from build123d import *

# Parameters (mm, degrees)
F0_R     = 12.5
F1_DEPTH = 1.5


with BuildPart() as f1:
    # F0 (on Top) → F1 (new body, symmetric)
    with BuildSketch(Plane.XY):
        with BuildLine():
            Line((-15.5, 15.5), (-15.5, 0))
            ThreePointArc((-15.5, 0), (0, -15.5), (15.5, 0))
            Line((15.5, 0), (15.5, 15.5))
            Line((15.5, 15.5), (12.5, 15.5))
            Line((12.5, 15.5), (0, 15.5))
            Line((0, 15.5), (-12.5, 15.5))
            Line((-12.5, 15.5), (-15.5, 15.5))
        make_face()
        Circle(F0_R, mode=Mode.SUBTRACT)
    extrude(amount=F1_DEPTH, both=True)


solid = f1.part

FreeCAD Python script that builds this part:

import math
import FreeCAD as App
import Part
import Sketcher
from FreeCAD import Vector
Q = App.Units.Quantity

doc = App.newDocument("Part")
params = doc.addObject("Spreadsheet::Sheet", "Params")
for row, (alias, value) in enumerate([
    ("sketch1_diameter", "25 mm"),
    ("sketch1_radius", "15.5 mm"),
    ("sketch1_height", "15.5 mm"),
    ("pad1_length", "3 mm"),
], start=1):
    params.set(f"A{row}", alias)
    params.set(f"B{row}", "=" + value)
    params.setAlias(f"B{row}", alias)

body = doc.addObject("PartDesign::Body", "Body")

# Sketch on XY plane
sketch1 = body.newObject("Sketcher::SketchObject", "Sketch")
sketch1.AttachmentSupport = (doc.getObject("XY_Plane"), [""])
sketch1.MapMode = "FlatFace"
sketch1.addGeometry(Part.LineSegment(Vector(-16, 16, 0), Vector(-16, 0, 0)), False)
sketch1.addGeometry(Part.ArcOfCircle(Part.Circle(Vector(0, 0, 0), Vector(0, 0, 1), 16), math.radians(180), math.radians(360)), False)
sketch1.addGeometry(Part.LineSegment(Vector(16, 0, 0), Vector(16, 16, 0)), False)
sketch1.addGeometry(Part.LineSegment(Vector(16, 16, 0), Vector(-16, 16, 0)), False)
sketch1.addGeometry(Part.Circle(Vector(0, 0, 0), Vector(0, 0, 1), 12), False)
sketch1.addConstraint(Sketcher.Constraint("Tangent", 0, 2, 1, 1))
sketch1.addConstraint(Sketcher.Constraint("Tangent", 1, 2, 2, 1))
sketch1.addConstraint(Sketcher.Constraint("Coincident", 2, 2, 3, 1))
sketch1.addConstraint(Sketcher.Constraint("Coincident", 3, 2, 0, 1))
sketch1.addConstraint(Sketcher.Constraint("Vertical", 0))
sketch1.addConstraint(Sketcher.Constraint("Vertical", 2))
sketch1.addConstraint(Sketcher.Constraint("Horizontal", 3))
sketch1.addConstraint(Sketcher.Constraint("Coincident", 1, 3, -1, 1))
sketch1.addConstraint(Sketcher.Constraint("Coincident", 4, 3, -1, 1))
sketch1.addConstraint(Sketcher.Constraint("Diameter", 4, Q("25 mm")))
sketch1.addConstraint(Sketcher.Constraint("Radius", 1, Q("15.5 mm")))
sketch1.addConstraint(Sketcher.Constraint("DistanceY", 0, 2, 0, 1, Q("15.5 mm")))
sketch1.setExpression("Constraints[9]", "Params.sketch1_diameter")
sketch1.setExpression("Constraints[10]", "Params.sketch1_radius")
sketch1.setExpression("Constraints[11]", "Params.sketch1_height")
pad1 = body.newObject("PartDesign::Pad", "Pad")
pad1.Profile = sketch1
pad1.setExpression("Length", "Params.pad1_length")
pad1.Midplane = True

doc.recompute()
